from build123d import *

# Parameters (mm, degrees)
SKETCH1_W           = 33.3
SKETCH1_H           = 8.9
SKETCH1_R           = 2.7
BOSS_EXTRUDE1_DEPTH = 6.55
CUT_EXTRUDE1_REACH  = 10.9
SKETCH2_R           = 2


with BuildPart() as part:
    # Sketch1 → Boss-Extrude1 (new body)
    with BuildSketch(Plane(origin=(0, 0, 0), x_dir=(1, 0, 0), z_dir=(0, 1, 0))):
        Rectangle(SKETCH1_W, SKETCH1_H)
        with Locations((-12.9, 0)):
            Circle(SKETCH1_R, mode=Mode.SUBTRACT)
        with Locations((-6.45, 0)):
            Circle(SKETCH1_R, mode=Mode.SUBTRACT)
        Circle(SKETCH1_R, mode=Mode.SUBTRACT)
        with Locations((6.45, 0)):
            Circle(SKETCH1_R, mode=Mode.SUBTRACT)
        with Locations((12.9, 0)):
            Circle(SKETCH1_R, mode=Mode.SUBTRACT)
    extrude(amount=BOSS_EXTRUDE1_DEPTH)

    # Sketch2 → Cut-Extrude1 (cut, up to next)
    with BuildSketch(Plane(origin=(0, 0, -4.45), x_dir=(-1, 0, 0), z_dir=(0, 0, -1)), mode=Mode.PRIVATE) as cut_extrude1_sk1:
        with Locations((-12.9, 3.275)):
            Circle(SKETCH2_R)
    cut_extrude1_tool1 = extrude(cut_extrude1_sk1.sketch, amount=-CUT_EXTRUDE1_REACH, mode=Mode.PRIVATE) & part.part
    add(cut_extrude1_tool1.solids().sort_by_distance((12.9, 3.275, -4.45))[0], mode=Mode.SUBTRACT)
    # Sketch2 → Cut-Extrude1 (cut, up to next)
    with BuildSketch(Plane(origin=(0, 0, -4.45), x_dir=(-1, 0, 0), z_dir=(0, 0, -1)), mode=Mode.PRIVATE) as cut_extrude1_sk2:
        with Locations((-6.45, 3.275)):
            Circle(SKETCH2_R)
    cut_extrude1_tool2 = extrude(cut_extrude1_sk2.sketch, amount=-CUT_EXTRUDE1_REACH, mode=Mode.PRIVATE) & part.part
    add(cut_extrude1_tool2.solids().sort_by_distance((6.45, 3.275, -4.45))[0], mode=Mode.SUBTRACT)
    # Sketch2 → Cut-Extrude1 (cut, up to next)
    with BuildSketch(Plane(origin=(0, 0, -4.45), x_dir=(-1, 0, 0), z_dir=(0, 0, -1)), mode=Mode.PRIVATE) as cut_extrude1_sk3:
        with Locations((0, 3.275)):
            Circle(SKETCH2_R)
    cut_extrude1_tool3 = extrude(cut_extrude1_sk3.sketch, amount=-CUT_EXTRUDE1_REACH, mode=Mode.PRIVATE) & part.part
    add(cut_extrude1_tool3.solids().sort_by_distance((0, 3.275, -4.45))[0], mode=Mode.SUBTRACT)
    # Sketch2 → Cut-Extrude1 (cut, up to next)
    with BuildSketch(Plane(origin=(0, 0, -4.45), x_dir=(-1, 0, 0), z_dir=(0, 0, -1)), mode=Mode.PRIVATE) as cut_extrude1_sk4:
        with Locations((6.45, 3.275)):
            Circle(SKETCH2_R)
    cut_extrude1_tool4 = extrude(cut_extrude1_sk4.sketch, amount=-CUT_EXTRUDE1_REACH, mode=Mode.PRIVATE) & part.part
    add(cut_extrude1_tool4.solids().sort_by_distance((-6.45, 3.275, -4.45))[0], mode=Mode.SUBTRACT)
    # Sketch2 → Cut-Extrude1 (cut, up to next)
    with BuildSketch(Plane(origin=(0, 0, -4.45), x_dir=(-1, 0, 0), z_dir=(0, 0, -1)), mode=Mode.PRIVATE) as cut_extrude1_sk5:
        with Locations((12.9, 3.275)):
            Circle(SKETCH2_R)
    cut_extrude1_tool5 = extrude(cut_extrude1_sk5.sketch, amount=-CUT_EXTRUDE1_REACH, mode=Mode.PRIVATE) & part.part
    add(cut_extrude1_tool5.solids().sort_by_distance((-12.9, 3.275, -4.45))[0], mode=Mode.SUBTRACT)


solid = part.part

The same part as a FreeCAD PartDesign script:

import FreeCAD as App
import Part
import Sketcher
from FreeCAD import Vector


def add_polygon(sketch, points):
    """Adds a closed chain of lines whose ends are joined by coincident constraints."""
    first, n = sketch.GeometryCount, len(points)
    for a, b in zip(points, points[1:] + points[:1]):
        sketch.addGeometry(Part.LineSegment(App.Vector(*a, 0), App.Vector(*b, 0)), False)
    for i in range(n):
        sketch.addConstraint(Sketcher.Constraint("Coincident", first + i, 2, first + (i + 1) % n, 1))

doc = App.newDocument("Part")
body = doc.addObject("PartDesign::Body", "Body")

# Sketch on XZ plane
sketch1 = body.newObject("Sketcher::SketchObject", "Sketch")
sketch1.AttachmentSupport = (doc.getObject("XZ_Plane"), [""])
sketch1.MapMode = "FlatFace"
add_polygon(sketch1, [(-16.6, -4.5), (-16.6, 4.5), (16.6, 4.5), (16.6, -4.5)])  # lines 0-3
sketch1.addGeometry(Part.Circle(Vector(-12.9, 0, 0), Vector(0, 0, 1), 2.7), False)  # 4
sketch1.addGeometry(Part.Circle(Vector(-6.5, 0, 0), Vector(0, 0, 1), 2.7), False)  # 5
sketch1.addGeometry(Part.Circle(Vector(0, 0, 0), Vector(0, 0, 1), 2.7), False)  # 6
sketch1.addGeometry(Part.Circle(Vector(6.5, 0, 0), Vector(0, 0, 1), 2.7), False)  # 7
sketch1.addGeometry(Part.Circle(Vector(12.9, 0, 0), Vector(0, 0, 1), 2.7), False)  # 8
sketch1.addConstraint(Sketcher.Constraint("Vertical", 0))
sketch1.addConstraint(Sketcher.Constraint("Horizontal", 1))
sketch1.addConstraint(Sketcher.Constraint("Vertical", 2))
sketch1.addConstraint(Sketcher.Constraint("Horizontal", 3))
sketch1.addConstraint(Sketcher.Constraint("Coincident", 6, 3, -1, 1))
sketch1.addConstraint(Sketcher.Constraint("Equal", 4, 5))
sketch1.addConstraint(Sketcher.Constraint("Equal", 5, 6))
sketch1.addConstraint(Sketcher.Constraint("Equal", 6, 7))
sketch1.addConstraint(Sketcher.Constraint("Equal", 7, 8))
sketch1.addConstraint(Sketcher.Constraint("Symmetric", 5, 3, 7, 3, -1, 1))
sketch1.addConstraint(Sketcher.Constraint("Symmetric", 4, 3, 8, 3, -1, 1))
sketch1.addConstraint(Sketcher.Constraint("Symmetric", 0, 2, 2, 2, -1, 1))
sketch1.addConstraint(Sketcher.Constraint("PointOnObject", 4, 3, -1))
sketch1.addConstraint(Sketcher.Constraint("PointOnObject", 5, 3, -1))
sketch1.addConstraint(Sketcher.Constraint("Diameter", 4, 5.4))
sketch1.addConstraint(Sketcher.Constraint("DistanceX", 1, 1, 1, 2, 33.3))
sketch1.addConstraint(Sketcher.Constraint("DistanceY", 0, 1, 0, 2, 8.9))
sketch1.addConstraint(Sketcher.Constraint("DistanceX", 4, 3, -1, 1, 12.9))
sketch1.addConstraint(Sketcher.Constraint("DistanceX", 5, 3, 7, 3, 12.9))
pad1 = body.newObject("PartDesign::Pad", "Pad")
pad1.Profile = sketch1
pad1.Length = 6.55
pad1.Reversed = True

# Sketch on XY plane
sketch2 = body.newObject("Sketcher::SketchObject", "Sketch001")
sketch2.AttachmentSupport = (doc.getObject("XY_Plane"), [""])
sketch2.MapMode = "FlatFace"
sketch2.AttachmentOffset = App.Placement(Vector(0, 0, -4.45), App.Rotation())
sketch2.addGeometry(Part.Circle(Vector(12.9, 3.3, 0), Vector(0, 0, 1), 2), False)
sketch2.addConstraint(Sketcher.Constraint("Diameter", 0, 4.0))
sketch2.addConstraint(Sketcher.Constraint("DistanceX", -1, 1, 0, 3, 12.9))
sketch2.addConstraint(Sketcher.Constraint("DistanceY", -1, 1, 0, 3, 3.275))
pocket1 = body.newObject("PartDesign::Pocket", "Pocket")
pocket1.Profile = sketch2
pocket1.Length = 2.636164
pocket1.Reversed = True

# Sketch on XY plane
sketch3 = body.newObject("Sketcher::SketchObject", "Sketch002")
sketch3.AttachmentSupport = (doc.getObject("XY_Plane"), [""])
sketch3.MapMode = "FlatFace"
sketch3.AttachmentOffset = App.Placement(Vector(0, 0, -4.45), App.Rotation())
sketch3.addGeometry(Part.Circle(Vector(6.5, 3.3, 0), Vector(0, 0, 1), 2), False)
sketch3.addConstraint(Sketcher.Constraint("Diameter", 0, 4.0))
sketch3.addConstraint(Sketcher.Constraint("DistanceX", -1, 1, 0, 3, 6.45))
sketch3.addConstraint(Sketcher.Constraint("DistanceY", -1, 1, 0, 3, 3.275))
pocket2 = body.newObject("PartDesign::Pocket", "Pocket001")
pocket2.Profile = sketch3
pocket2.Length = 2.636164
pocket2.Reversed = True

# Sketch on XY plane
sketch4 = body.newObject("Sketcher::SketchObject", "Sketch003")
sketch4.AttachmentSupport = (doc.getObject("XY_Plane"), [""])
sketch4.MapMode = "FlatFace"
sketch4.AttachmentOffset = App.Placement(Vector(0, 0, -4.45), App.Rotation())
sketch4.addGeometry(Part.Circle(Vector(0, 3.3, 0), Vector(0, 0, 1), 2), False)
sketch4.addConstraint(Sketcher.Constraint("PointOnObject", 0, 3, -2))
sketch4.addConstraint(Sketcher.Constraint("Diameter", 0, 4.0))
sketch4.addConstraint(Sketcher.Constraint("DistanceY", -1, 1, 0, 3, 3.275))
pocket3 = body.newObject("PartDesign::Pocket", "Pocket002")
pocket3.Profile = sketch4
pocket3.Length = 2.636164
pocket3.Reversed = True

# Sketch on XY plane
sketch5 = body.newObject("Sketcher::SketchObject", "Sketch004")
sketch5.AttachmentSupport = (doc.getObject("XY_Plane"), [""])
sketch5.MapMode = "FlatFace"
sketch5.AttachmentOffset = App.Placement(Vector(0, 0, -4.45), App.Rotation())
sketch5.addGeometry(Part.Circle(Vector(-6.5, 3.3, 0), Vector(0, 0, 1), 2), False)
sketch5.addConstraint(Sketcher.Constraint("Diameter", 0, 4.0))
sketch5.addConstraint(Sketcher.Constraint("DistanceX", 0, 3, -1, 1, 6.45))
sketch5.addConstraint(Sketcher.Constraint("DistanceY", -1, 1, 0, 3, 3.275))
pocket4 = body.newObject("PartDesign::Pocket", "Pocket003")
pocket4.Profile = sketch5
pocket4.Length = 2.636164
pocket4.Reversed = True

# Sketch on XY plane
sketch6 = body.newObject("Sketcher::SketchObject", "Sketch005")
sketch6.AttachmentSupport = (doc.getObject("XY_Plane"), [""])
sketch6.MapMode = "FlatFace"
sketch6.AttachmentOffset = App.Placement(Vector(0, 0, -4.45), App.Rotation())
sketch6.addGeometry(Part.Circle(Vector(-12.9, 3.3, 0), Vector(0, 0, 1), 2), False)
sketch6.addConstraint(Sketcher.Constraint("Diameter", 0, 4.0))
sketch6.addConstraint(Sketcher.Constraint("DistanceX", 0, 3, -1, 1, 12.9))
sketch6.addConstraint(Sketcher.Constraint("DistanceY", -1, 1, 0, 3, 3.275))
pocket5 = body.newObject("PartDesign::Pocket", "Pocket004")
pocket5.Profile = sketch6
pocket5.Type = "UpToFirst"
pocket5.Reversed = True

doc.recompute()
